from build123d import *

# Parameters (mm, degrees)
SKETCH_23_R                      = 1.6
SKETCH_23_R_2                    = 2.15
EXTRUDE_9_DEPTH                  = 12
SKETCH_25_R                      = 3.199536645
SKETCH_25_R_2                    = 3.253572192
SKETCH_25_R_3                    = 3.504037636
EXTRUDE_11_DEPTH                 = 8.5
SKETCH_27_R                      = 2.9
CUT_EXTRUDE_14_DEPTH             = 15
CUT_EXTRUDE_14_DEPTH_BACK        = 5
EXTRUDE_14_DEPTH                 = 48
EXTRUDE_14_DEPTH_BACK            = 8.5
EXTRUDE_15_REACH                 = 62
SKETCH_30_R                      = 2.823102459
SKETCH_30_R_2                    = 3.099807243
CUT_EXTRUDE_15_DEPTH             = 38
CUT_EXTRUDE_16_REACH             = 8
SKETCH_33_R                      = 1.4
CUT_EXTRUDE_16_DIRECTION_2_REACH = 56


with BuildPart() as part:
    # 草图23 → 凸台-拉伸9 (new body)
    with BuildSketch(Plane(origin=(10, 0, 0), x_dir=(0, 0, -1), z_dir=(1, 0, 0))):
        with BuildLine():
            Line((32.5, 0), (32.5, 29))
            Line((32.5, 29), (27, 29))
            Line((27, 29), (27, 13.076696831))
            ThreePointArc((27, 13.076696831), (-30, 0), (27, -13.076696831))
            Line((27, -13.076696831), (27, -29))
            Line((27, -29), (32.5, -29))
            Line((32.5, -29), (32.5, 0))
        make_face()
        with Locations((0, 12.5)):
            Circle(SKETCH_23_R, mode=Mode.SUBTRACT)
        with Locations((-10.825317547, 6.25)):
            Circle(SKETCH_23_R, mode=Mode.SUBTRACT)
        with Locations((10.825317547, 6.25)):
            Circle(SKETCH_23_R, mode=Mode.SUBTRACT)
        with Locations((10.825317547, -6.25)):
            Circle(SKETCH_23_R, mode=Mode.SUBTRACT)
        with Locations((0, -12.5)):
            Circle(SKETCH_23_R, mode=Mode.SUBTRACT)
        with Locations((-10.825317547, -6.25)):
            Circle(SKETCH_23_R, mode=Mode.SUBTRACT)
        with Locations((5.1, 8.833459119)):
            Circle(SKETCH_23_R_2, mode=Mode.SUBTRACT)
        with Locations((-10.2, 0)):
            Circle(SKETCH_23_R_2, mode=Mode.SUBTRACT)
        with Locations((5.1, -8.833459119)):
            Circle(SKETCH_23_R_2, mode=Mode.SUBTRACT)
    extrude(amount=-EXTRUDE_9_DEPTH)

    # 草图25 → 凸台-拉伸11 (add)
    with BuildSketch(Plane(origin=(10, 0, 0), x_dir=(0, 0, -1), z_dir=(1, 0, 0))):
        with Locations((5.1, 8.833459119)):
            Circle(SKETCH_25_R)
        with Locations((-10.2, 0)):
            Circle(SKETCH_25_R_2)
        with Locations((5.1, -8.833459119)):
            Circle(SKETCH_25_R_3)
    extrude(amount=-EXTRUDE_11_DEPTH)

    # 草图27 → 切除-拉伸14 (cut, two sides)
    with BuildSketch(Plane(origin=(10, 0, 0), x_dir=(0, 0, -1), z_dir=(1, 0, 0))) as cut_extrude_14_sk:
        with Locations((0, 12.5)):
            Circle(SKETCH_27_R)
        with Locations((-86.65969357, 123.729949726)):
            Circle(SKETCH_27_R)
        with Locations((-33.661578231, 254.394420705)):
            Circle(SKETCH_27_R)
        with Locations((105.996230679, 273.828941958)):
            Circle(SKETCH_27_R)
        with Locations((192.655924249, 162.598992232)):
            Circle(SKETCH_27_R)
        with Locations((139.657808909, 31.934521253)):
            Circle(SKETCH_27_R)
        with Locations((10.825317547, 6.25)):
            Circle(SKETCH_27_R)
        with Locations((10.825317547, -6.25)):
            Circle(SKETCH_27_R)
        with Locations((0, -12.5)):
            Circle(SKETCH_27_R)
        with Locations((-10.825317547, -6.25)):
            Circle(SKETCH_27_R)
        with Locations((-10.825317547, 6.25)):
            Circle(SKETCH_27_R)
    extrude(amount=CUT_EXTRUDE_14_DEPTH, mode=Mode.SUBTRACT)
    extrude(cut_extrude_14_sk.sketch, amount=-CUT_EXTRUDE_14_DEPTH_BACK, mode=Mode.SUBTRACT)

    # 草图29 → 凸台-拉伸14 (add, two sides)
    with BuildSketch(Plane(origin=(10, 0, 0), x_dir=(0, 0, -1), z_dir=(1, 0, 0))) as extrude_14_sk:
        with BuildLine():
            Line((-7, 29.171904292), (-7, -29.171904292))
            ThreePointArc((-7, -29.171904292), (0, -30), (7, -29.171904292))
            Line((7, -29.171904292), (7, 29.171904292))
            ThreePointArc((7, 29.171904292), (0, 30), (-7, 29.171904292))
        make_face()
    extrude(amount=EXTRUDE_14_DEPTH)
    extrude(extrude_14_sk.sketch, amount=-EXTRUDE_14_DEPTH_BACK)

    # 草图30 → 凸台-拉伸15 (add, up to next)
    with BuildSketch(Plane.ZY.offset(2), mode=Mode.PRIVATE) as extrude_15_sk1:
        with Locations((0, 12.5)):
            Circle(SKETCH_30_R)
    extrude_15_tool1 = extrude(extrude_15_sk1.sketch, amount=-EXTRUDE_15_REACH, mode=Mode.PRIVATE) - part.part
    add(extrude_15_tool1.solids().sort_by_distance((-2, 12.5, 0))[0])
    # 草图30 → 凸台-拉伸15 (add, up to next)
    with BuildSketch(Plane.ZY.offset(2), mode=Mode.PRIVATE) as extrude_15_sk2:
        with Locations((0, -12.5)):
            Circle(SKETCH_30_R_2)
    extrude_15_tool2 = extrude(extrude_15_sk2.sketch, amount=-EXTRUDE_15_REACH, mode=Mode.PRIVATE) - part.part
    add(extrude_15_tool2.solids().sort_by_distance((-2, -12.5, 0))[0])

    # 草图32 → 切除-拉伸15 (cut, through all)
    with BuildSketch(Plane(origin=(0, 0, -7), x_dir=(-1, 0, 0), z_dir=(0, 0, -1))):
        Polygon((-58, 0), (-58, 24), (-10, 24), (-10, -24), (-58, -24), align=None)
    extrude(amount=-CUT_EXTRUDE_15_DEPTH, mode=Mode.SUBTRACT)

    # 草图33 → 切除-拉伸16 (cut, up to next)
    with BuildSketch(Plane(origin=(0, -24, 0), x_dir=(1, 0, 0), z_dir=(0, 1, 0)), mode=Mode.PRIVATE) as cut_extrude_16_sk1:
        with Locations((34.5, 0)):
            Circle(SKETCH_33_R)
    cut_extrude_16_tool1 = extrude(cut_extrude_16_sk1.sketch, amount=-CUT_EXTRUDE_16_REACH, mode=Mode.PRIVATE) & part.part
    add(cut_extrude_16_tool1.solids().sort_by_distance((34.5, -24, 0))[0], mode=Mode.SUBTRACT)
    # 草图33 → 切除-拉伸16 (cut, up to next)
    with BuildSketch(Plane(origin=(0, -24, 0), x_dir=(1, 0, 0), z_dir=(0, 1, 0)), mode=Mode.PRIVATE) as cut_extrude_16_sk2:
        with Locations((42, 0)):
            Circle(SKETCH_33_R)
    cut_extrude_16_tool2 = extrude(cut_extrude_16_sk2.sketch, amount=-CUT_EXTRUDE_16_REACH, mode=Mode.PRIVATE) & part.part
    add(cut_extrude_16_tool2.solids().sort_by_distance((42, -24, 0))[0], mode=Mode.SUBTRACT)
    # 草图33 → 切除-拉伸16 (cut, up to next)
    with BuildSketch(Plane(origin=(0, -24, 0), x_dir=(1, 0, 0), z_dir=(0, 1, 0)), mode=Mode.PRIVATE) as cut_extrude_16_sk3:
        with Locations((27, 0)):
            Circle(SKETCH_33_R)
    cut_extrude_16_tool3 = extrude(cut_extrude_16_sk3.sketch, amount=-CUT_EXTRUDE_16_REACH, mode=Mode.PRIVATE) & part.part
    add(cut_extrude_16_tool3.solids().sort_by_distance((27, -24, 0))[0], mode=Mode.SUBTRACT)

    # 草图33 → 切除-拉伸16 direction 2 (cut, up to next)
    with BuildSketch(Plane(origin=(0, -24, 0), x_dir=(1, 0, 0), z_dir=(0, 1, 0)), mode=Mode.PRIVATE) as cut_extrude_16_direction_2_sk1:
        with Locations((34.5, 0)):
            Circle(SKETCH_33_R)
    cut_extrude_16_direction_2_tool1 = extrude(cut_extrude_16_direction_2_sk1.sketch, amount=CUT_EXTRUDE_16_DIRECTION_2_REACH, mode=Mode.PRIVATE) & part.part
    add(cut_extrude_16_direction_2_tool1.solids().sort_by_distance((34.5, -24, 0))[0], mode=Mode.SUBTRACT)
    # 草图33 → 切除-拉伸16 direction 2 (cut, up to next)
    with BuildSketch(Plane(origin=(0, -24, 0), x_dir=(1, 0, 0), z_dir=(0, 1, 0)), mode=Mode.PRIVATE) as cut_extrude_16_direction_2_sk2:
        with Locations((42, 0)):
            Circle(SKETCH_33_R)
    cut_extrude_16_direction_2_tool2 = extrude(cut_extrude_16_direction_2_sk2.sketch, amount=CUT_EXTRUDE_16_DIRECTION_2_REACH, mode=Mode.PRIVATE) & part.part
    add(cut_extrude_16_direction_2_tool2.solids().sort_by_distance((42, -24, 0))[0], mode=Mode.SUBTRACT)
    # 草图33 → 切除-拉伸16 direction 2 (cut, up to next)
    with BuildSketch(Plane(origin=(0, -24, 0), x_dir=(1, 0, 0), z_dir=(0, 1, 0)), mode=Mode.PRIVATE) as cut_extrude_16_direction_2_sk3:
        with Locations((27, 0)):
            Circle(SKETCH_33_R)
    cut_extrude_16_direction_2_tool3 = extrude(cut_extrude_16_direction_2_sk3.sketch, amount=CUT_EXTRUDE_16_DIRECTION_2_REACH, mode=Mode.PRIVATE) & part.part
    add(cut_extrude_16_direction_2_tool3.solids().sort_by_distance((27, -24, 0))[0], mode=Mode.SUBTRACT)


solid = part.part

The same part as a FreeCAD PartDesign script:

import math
import FreeCAD as App
import Part
import Sketcher

V = App.Vector
Q = App.Units.Quantity


def add_polygon(sketch, points):
    """Adds a closed chain of lines whose ends are joined by coincident constraints."""
    first, n = sketch.GeometryCount, len(points)
    for a, b in zip(points, points[1:] + points[:1]):
        sketch.addGeometry(Part.LineSegment(App.Vector(*a, 0), App.Vector(*b, 0)), False)
    for i in range(n):
        sketch.addConstraint(Sketcher.Constraint("Coincident", first + i, 2, first + (i + 1) % n, 1))

doc = App.newDocument("Part")
body = doc.addObject("PartDesign::Body", "Body")

# Sketch on YZ plane
sketch1 = body.newObject("Sketcher::SketchObject", "Sketch")
sketch1.AttachmentSupport = (doc.getObject("YZ_Plane"), [""])
sketch1.MapMode = "FlatFace"
sketch1.AttachmentOffset = App.Placement(V(0, 0, 10), App.Rotation())
sketch1.addGeometry([
    Part.LineSegment(V(29, -32.5, 0), V(29, -27, 0)),  # 0
    Part.LineSegment(V(29, -27, 0), V(13.1, -27, 0)),  # 1
    Part.ArcOfCircle(Part.Circle(V(0, 0, 0), V(0, 0, 1), 30), math.radians(-64), math.radians(244)),  # 2
    Part.LineSegment(V(-13.1, -27, 0), V(-29, -27, 0)),  # 3
    Part.LineSegment(V(-29, -27, 0), V(-29, -32.5, 0)),  # 4
    Part.LineSegment(V(-29, -32.5, 0), V(29, -32.5, 0)),  # 5
    Part.Circle(V(-6.2, 10.8, 0), V(0, 0, 1), 1.6),  # 6
    Part.Circle(V(-12.5, 0, 0), V(0, 0, 1), 1.6),  # 7
    Part.Circle(V(-8.8, -5.1, 0), V(0, 0, 1), 2.1),  # 8
    Part.Circle(V(-6.2, -10.8, 0), V(0, 0, 1), 1.6),  # 9
    Part.Circle(V(0, 10.2, 0), V(0, 0, 1), 2.1),  # 10
    Part.Circle(V(6.2, 10.8, 0), V(0, 0, 1), 1.6),  # 11
    Part.Circle(V(6.2, -10.8, 0), V(0, 0, 1), 1.6),  # 12
    Part.Circle(V(8.8, -5.1, 0), V(0, 0, 1), 2.1),  # 13
    Part.Circle(V(12.5, 0, 0), V(0, 0, 1), 1.6),  # 14
], False)
sketch1.addConstraint([
    Sketcher.Constraint("Coincident", 0, 2, 1, 1),
    Sketcher.Constraint("Coincident", 1, 2, 2, 1),
    Sketcher.Constraint("Coincident", 2, 2, 3, 1),
    Sketcher.Constraint("Coincident", 3, 2, 4, 1),
    Sketcher.Constraint("Coincident", 4, 2, 5, 1),
    Sketcher.Constraint("Coincident", 5, 2, 0, 1),
    Sketcher.Constraint("Vertical", 0),
    Sketcher.Constraint("Horizontal", 1),
    Sketcher.Constraint("Horizontal", 3),
    Sketcher.Constraint("Vertical", 4),
    Sketcher.Constraint("Horizontal", 5),
    Sketcher.Constraint("Coincident", 2, 3, -1, 1),
    Sketcher.Constraint("Equal", 6, 7),
    Sketcher.Constraint("Equal", 7, 9),
    Sketcher.Constraint("Equal", 8, 10),
    Sketcher.Constraint("Equal", 9, 11),
    Sketcher.Constraint("Equal", 11, 12),
    Sketcher.Constraint("Equal", 10, 13),
    Sketcher.Constraint("Equal", 12, 14),
    Sketcher.Constraint("Symmetric", 9, 3, 11, 3, -1, 1),
    Sketcher.Constraint("Symmetric", 6, 3, 12, 3, -1, 1),
    Sketcher.Constraint("Symmetric", 7, 3, 14, 3, -1, 1),
    Sketcher.Constraint("Symmetric", 6, 3, 11, 3, -2),
    Sketcher.Constraint("Symmetric", 8, 3, 13, 3, -2),
    Sketcher.Constraint("Symmetric", 0, 2, 3, 2, -2),
    Sketcher.Constraint("PointOnObject", 7, 3, -1),
    Sketcher.Constraint("PointOnObject", 10, 3, -2),
    Sketcher.Constraint("Radius", 2, Q("30 mm")),
    Sketcher.Constraint("Diameter", 6, Q("3.2 mm")),
    Sketcher.Constraint("Diameter", 8, Q("4.3 mm")),
    Sketcher.Constraint("DistanceX", 5, 1, 5, 2, Q("58 mm")),
    Sketcher.Constraint("DistanceY", 0, 1, 0, 2, Q("5.5 mm")),
    Sketcher.Constraint("DistanceY", 0, 2, -1, 1, Q("27 mm")),
    Sketcher.Constraint("DistanceX", 7, 3, -1, 1, Q("12.5 mm")),
    Sketcher.Constraint("DistanceY", 8, 3, -1, 1, Q("5.1 mm")),
    Sketcher.Constraint("DistanceY", -1, 1, 10, 3, Q("10.2 mm")),
    Sketcher.Constraint("DistanceX", 6, 3, 11, 3, Q("12.5 mm")),
    Sketcher.Constraint("DistanceX", 8, 3, -1, 1, Q("8.833459 mm")),
    Sketcher.Constraint("DistanceY", -1, 1, 6, 3, Q("10.825318 mm")),
])
pad1 = body.newObject("PartDesign::Pad", "Pad")
pad1.Profile = sketch1
pad1.Length = 12
pad1.Reversed = True

# Sketch on YZ plane
sketch2 = body.newObject("Sketcher::SketchObject", "Sketch001")
sketch2.AttachmentSupport = (doc.getObject("YZ_Plane"), [""])
sketch2.MapMode = "FlatFace"
sketch2.AttachmentOffset = App.Placement(V(0, 0, 10), App.Rotation())
sketch2.addGeometry([
    Part.Circle(V(8.8, -5.1, 0), V(0, 0, 1), 3.2),
    Part.Circle(V(0, 10.2, 0), V(0, 0, 1), 3.3),
    Part.Circle(V(-8.8, -5.1, 0), V(0, 0, 1), 3.5),
], False)
sketch2.addConstraint([
    Sketcher.Constraint("Symmetric", 0, 3, 2, 3, -2),
    Sketcher.Constraint("PointOnObject", 1, 3, -2),
    Sketcher.Constraint("DistanceY", 0, 3, -1, 1, Q("5.1 mm")),
    Sketcher.Constraint("DistanceY", -1, 1, 1, 3, Q("10.2 mm")),
    Sketcher.Constraint("Diameter", 0, Q("6.399073 mm")),
    Sketcher.Constraint("Diameter", 1, Q("6.507144 mm")),
    Sketcher.Constraint("Diameter", 2, Q("7.008075 mm")),
    Sketcher.Constraint("DistanceX", -1, 1, 0, 3, Q("8.833459 mm")),
])
pad2 = body.newObject("PartDesign::Pad", "Pad001")
pad2.Profile = sketch2
pad2.Length = 8.5
pad2.Reversed = True

# Sketch on YZ plane
sketch3 = body.newObject("Sketcher::SketchObject", "Sketch002")
sketch3.AttachmentSupport = (doc.getObject("YZ_Plane"), [""])
sketch3.MapMode = "FlatFace"
sketch3.AttachmentOffset = App.Placement(V(0, 0, 10), App.Rotation())
sketch3.addGeometry([
    Part.Circle(V(12.5, 0, 0), V(0, 0, 1), 2.9),  # 0
    Part.Circle(V(123.7, 86.7, 0), V(0, 0, 1), 2.9),  # 1
    Part.Circle(V(254.4, 33.7, 0), V(0, 0, 1), 2.9),  # 2
    Part.Circle(V(273.8, -106, 0), V(0, 0, 1), 2.9),  # 3
    Part.Circle(V(162.6, -192.7, 0), V(0, 0, 1), 2.9),  # 4
    Part.Circle(V(31.9, -139.7, 0), V(0, 0, 1), 2.9),  # 5
    Part.Circle(V(6.2, -10.8, 0), V(0, 0, 1), 2.9),  # 6
    Part.Circle(V(-6.2, -10.8, 0), V(0, 0, 1), 2.9),  # 7
    Part.Circle(V(-12.5, 0, 0), V(0, 0, 1), 2.9),  # 8
    Part.Circle(V(-6.2, 10.8, 0), V(0, 0, 1), 2.9),  # 9
    Part.Circle(V(6.2, 10.8, 0), V(0, 0, 1), 2.9),  # 10
], False)
sketch3.addConstraint([
    Sketcher.Constraint("Equal", 0, 1),
    Sketcher.Constraint("Equal", 1, 2),
    Sketcher.Constraint("Equal", 2, 3),
    Sketcher.Constraint("Equal", 3, 4),
    Sketcher.Constraint("Equal", 4, 5),
    Sketcher.Constraint("Equal", 5, 6),
    Sketcher.Constraint("Equal", 6, 7),
    Sketcher.Constraint("Equal", 7, 8),
    Sketcher.Constraint("Equal", 8, 9),
    Sketcher.Constraint("Equal", 9, 10),
    Sketcher.Constraint("Symmetric", 0, 3, 8, 3, -1, 1),
    Sketcher.Constraint("Symmetric", 6, 3, 9, 3, -1, 1),
    Sketcher.Constraint("Symmetric", 7, 3, 10, 3, -1, 1),
    Sketcher.Constraint("Symmetric", 6, 3, 7, 3, -2),
    Sketcher.Constraint("PointOnObject", 0, 3, -1),
    Sketcher.Constraint("Diameter", 0, Q("5.8 mm")),
    Sketcher.Constraint("DistanceX", 8, 3, 0, 3, Q("25 mm")),
    Sketcher.Constraint("DistanceX", 7, 3, 6, 3, Q("12.5 mm")),
    Sketcher.Constraint("DistanceX", 5, 3, 2, 3, Q("222.459899 mm")),
    Sketcher.Constraint("DistanceX", -1, 1, 1, 3, Q("123.72995 mm")),
    Sketcher.Constraint("DistanceX", -1, 1, 2, 3, Q("254.394421 mm")),
    Sketcher.Constraint("DistanceY", -1, 1, 2, 3, Q("33.661578 mm")),
    Sketcher.Constraint("DistanceX", -1, 1, 3, 3, Q("273.828942 mm")),
    Sketcher.Constraint("DistanceY", 3, 3, -1, 1, Q("105.996231 mm")),
    Sketcher.Constraint("DistanceY", 5, 3, -1, 1, Q("139.657809 mm")),
    Sketcher.Constraint("DistanceX", 4, 3, 3, 3, Q("111.22995 mm")),
    Sketcher.Constraint("DistanceY", 5, 3, 6, 3, Q("128.832491 mm")),
    Sketcher.Constraint("DistanceY", 6, 3, 1, 3, Q("97.485011 mm")),
    Sketcher.Constraint("DistanceY", 4, 3, -1, 1, Q("192.655924 mm")),
])
pocket1 = body.newObject("PartDesign::Pocket", "Pocket")
pocket1.Profile = sketch3
pocket1.Type = "TwoLengths"
pocket1.Length = 15
pocket1.Length2 = 5
pocket1.Reversed = True

# Sketch on YZ plane
sketch4 = body.newObject("Sketcher::SketchObject", "Sketch003")
sketch4.AttachmentSupport = (doc.getObject("YZ_Plane"), [""])
sketch4.MapMode = "FlatFace"
sketch4.AttachmentOffset = App.Placement(V(0, 0, 10), App.Rotation())
sketch4.addGeometry([
    Part.LineSegment(V(29, 7, 0), V(-29, 7, 0)),
    Part.ArcOfCircle(Part.Circle(V(0, 0, 0), V(0, 0, 1), 30), math.radians(167), math.radians(193)),
    Part.LineSegment(V(-29, -7, 0), V(29, -7, 0)),
    Part.ArcOfCircle(Part.Circle(V(0, 0, 0), V(0, 0, 1), 30), math.radians(-13), math.radians(13)),
], False)
sketch4.addConstraint([
    Sketcher.Constraint("Coincident", 0, 2, 1, 1),
    Sketcher.Constraint("Coincident", 1, 2, 2, 1),
    Sketcher.Constraint("Coincident", 2, 2, 3, 1),
    Sketcher.Constraint("Coincident", 3, 2, 0, 1),
    Sketcher.Constraint("Horizontal", 0),
    Sketcher.Constraint("Horizontal", 2),
    Sketcher.Constraint("Coincident", 1, 3, -1, 1),
    Sketcher.Constraint("Coincident", 3, 3, -1, 1),
    Sketcher.Constraint("Equal", 1, 3),
    Sketcher.Constraint("Vertical", 0, 2, 1, 2),
    Sketcher.Constraint("Radius", 1, Q("30 mm")),
    Sketcher.Constraint("DistanceY", -1, 1, 0, 2, Q("7 mm")),
])
pad3 = body.newObject("PartDesign::Pad", "Pad002")
pad3.Profile = sketch4
pad3.Type = "TwoLengths"
pad3.Length = 48
pad3.Length2 = 8.5

# Sketch on YZ plane
sketch5 = body.newObject("Sketcher::SketchObject", "Sketch004")
sketch5.AttachmentSupport = (doc.getObject("YZ_Plane"), [""])
sketch5.MapMode = "FlatFace"
sketch5.AttachmentOffset = App.Placement(V(0, 0, -2), App.Rotation())
sketch5.addGeometry(Part.Circle(V(12.5, 0, 0), V(0, 0, 1), 2.8), False)
sketch5.addConstraint([
    Sketcher.Constraint("PointOnObject", 0, 3, -1),
    Sketcher.Constraint("DistanceX", -1, 1, 0, 3, Q("12.5 mm")),
    Sketcher.Constraint("Diameter", 0, Q("5.646205 mm")),
])
pad4 = body.newObject("PartDesign::Pad", "Pad003")
pad4.Profile = sketch5
pad4.Type = "UpToFirst"

# Sketch on YZ plane
sketch6 = body.newObject("Sketcher::SketchObject", "Sketch005")
sketch6.AttachmentSupport = (doc.getObject("YZ_Plane"), [""])
sketch6.MapMode = "FlatFace"
sketch6.AttachmentOffset = App.Placement(V(0, 0, -2), App.Rotation())
sketch6.addGeometry(Part.Circle(V(-12.5, 0, 0), V(0, 0, 1), 3.1), False)
sketch6.addConstraint([
    Sketcher.Constraint("PointOnObject", 0, 3, -1),
    Sketcher.Constraint("DistanceX", 0, 3, -1, 1, Q("12.5 mm")),
    Sketcher.Constraint("Diameter", 0, Q("6.199614 mm")),
])
pad5 = body.newObject("PartDesign::Pad", "Pad004")
pad5.Profile = sketch6
pad5.Type = "UpToFirst"

# Sketch on XY plane
sketch7 = body.newObject("Sketcher::SketchObject", "Sketch006")
sketch7.AttachmentSupport = (doc.getObject("XY_Plane"), [""])
sketch7.MapMode = "FlatFace"
sketch7.AttachmentOffset = App.Placement(V(0, 0, -7), App.Rotation())
add_polygon(sketch7, [(58, 24), (58, -24), (10, -24), (10, 24)])  # lines 0-3
sketch7.addConstraint([
    Sketcher.Constraint("Vertical", 0),
    Sketcher.Constraint("Horizontal", 1),
    Sketcher.Constraint("Vertical", 2),
    Sketcher.Constraint("Horizontal", 3),
    Sketcher.Constraint("Equal", 3, 0),
    Sketcher.Constraint("DistanceX", 1, 2, 1, 1, Q("48 mm")),
    Sketcher.Constraint("DistanceX", -1, 1, 0, 2, Q("58 mm")),
    Sketcher.Constraint("DistanceY", 0, 2, -1, 1, Q("24 mm")),
])
pocket2 = body.newObject("PartDesign::Pocket", "Pocket001")
pocket2.Profile = sketch7
pocket2.Type = "ThroughAll"
pocket2.Reversed = True

# Sketch on XZ plane
sketch8 = body.newObject("Sketcher::SketchObject", "Sketch007")
sketch8.AttachmentSupport = (doc.getObject("XZ_Plane"), [""])
sketch8.MapMode = "FlatFace"
sketch8.AttachmentOffset = App.Placement(V(0, 0, 24), App.Rotation())
sketch8.addGeometry(Part.Circle(V(34.5, 0, 0), V(0, 0, 1), 1.4), False)
sketch8.addConstraint([
    Sketcher.Constraint("PointOnObject", 0, 3, -1),
    Sketcher.Constraint("Diameter", 0, Q("2.8 mm")),
    Sketcher.Constraint("DistanceX", -1, 1, 0, 3, Q("34.5 mm")),
])
pocket3 = body.newObject("PartDesign::Pocket", "Pocket002")
pocket3.Profile = sketch8
pocket3.Length = 6
pocket3.Reversed = True

# Sketch on XZ plane
sketch9 = body.newObject("Sketcher::SketchObject", "Sketch008")
sketch9.AttachmentSupport = (doc.getObject("XZ_Plane"), [""])
sketch9.MapMode = "FlatFace"
sketch9.AttachmentOffset = App.Placement(V(0, 0, 24), App.Rotation())
sketch9.addGeometry(Part.Circle(V(42, 0, 0), V(0, 0, 1), 1.4), False)
sketch9.addConstraint([
    Sketcher.Constraint("PointOnObject", 0, 3, -1),
    Sketcher.Constraint("Diameter", 0, Q("2.8 mm")),
    Sketcher.Constraint("DistanceX", -1, 1, 0, 3, Q("42 mm")),
])
pocket4 = body.newObject("PartDesign::Pocket", "Pocket003")
pocket4.Profile = sketch9
pocket4.Length = 6
pocket4.Reversed = True

# Sketch on XZ plane
sketch10 = body.newObject("Sketcher::SketchObject", "Sketch009")
sketch10.AttachmentSupport = (doc.getObject("XZ_Plane"), [""])
sketch10.MapMode = "FlatFace"
sketch10.AttachmentOffset = App.Placement(V(0, 0, 24), App.Rotation())
sketch10.addGeometry(Part.Circle(V(27, 0, 0), V(0, 0, 1), 1.4), False)
sketch10.addConstraint([
    Sketcher.Constraint("PointOnObject", 0, 3, -1),
    Sketcher.Constraint("Diameter", 0, Q("2.8 mm")),
    Sketcher.Constraint("DistanceX", -1, 1, 0, 3, Q("27 mm")),
])
pocket5 = body.newObject("PartDesign::Pocket", "Pocket004")
pocket5.Profile = sketch10
pocket5.Length = 6
pocket5.Reversed = True

# Sketch on XZ plane
sketch11 = body.newObject("Sketcher::SketchObject", "Sketch010")
sketch11.AttachmentSupport = (doc.getObject("XZ_Plane"), [""])
sketch11.MapMode = "FlatFace"
sketch11.AttachmentOffset = App.Placement(V(0, 0, 24), App.Rotation())
sketch11.addGeometry(Part.Circle(V(34.5, 0, 0), V(0, 0, 1), 1.4), False)
sketch11.addConstraint([
    Sketcher.Constraint("PointOnObject", 0, 3, -1),
    Sketcher.Constraint("Diameter", 0, Q("2.8 mm")),
    Sketcher.Constraint("DistanceX", -1, 1, 0, 3, Q("34.5 mm")),
])
pocket6 = body.newObject("PartDesign::Pocket", "Pocket005")
pocket6.Profile = sketch11
pocket6.Length = 54

# Sketch on XZ plane
sketch12 = body.newObject("Sketcher::SketchObject", "Sketch011")
sketch12.AttachmentSupport = (doc.getObject("XZ_Plane"), [""])
sketch12.MapMode = "FlatFace"
sketch12.AttachmentOffset = App.Placement(V(0, 0, 24), App.Rotation())
sketch12.addGeometry(Part.Circle(V(42, 0, 0), V(0, 0, 1), 1.4), False)
sketch12.addConstraint([
    Sketcher.Constraint("PointOnObject", 0, 3, -1),
    Sketcher.Constraint("Diameter", 0, Q("2.8 mm")),
    Sketcher.Constraint("DistanceX", -1, 1, 0, 3, Q("42 mm")),
])
pocket7 = body.newObject("PartDesign::Pocket", "Pocket006")
pocket7.Profile = sketch12
pocket7.Length = 54

# Sketch on XZ plane
sketch13 = body.newObject("Sketcher::SketchObject", "Sketch012")
sketch13.AttachmentSupport = (doc.getObject("XZ_Plane"), [""])
sketch13.MapMode = "FlatFace"
sketch13.AttachmentOffset = App.Placement(V(0, 0, 24), App.Rotation())
sketch13.addGeometry(Part.Circle(V(27, 0, 0), V(0, 0, 1), 1.4), False)
sketch13.addConstraint([
    Sketcher.Constraint("PointOnObject", 0, 3, -1),
    Sketcher.Constraint("Diameter", 0, Q("2.8 mm")),
    Sketcher.Constraint("DistanceX", -1, 1, 0, 3, Q("27 mm")),
])
pocket8 = body.newObject("PartDesign::Pocket", "Pocket007")
pocket8.Profile = sketch13
pocket8.Length = 54

doc.recompute()
